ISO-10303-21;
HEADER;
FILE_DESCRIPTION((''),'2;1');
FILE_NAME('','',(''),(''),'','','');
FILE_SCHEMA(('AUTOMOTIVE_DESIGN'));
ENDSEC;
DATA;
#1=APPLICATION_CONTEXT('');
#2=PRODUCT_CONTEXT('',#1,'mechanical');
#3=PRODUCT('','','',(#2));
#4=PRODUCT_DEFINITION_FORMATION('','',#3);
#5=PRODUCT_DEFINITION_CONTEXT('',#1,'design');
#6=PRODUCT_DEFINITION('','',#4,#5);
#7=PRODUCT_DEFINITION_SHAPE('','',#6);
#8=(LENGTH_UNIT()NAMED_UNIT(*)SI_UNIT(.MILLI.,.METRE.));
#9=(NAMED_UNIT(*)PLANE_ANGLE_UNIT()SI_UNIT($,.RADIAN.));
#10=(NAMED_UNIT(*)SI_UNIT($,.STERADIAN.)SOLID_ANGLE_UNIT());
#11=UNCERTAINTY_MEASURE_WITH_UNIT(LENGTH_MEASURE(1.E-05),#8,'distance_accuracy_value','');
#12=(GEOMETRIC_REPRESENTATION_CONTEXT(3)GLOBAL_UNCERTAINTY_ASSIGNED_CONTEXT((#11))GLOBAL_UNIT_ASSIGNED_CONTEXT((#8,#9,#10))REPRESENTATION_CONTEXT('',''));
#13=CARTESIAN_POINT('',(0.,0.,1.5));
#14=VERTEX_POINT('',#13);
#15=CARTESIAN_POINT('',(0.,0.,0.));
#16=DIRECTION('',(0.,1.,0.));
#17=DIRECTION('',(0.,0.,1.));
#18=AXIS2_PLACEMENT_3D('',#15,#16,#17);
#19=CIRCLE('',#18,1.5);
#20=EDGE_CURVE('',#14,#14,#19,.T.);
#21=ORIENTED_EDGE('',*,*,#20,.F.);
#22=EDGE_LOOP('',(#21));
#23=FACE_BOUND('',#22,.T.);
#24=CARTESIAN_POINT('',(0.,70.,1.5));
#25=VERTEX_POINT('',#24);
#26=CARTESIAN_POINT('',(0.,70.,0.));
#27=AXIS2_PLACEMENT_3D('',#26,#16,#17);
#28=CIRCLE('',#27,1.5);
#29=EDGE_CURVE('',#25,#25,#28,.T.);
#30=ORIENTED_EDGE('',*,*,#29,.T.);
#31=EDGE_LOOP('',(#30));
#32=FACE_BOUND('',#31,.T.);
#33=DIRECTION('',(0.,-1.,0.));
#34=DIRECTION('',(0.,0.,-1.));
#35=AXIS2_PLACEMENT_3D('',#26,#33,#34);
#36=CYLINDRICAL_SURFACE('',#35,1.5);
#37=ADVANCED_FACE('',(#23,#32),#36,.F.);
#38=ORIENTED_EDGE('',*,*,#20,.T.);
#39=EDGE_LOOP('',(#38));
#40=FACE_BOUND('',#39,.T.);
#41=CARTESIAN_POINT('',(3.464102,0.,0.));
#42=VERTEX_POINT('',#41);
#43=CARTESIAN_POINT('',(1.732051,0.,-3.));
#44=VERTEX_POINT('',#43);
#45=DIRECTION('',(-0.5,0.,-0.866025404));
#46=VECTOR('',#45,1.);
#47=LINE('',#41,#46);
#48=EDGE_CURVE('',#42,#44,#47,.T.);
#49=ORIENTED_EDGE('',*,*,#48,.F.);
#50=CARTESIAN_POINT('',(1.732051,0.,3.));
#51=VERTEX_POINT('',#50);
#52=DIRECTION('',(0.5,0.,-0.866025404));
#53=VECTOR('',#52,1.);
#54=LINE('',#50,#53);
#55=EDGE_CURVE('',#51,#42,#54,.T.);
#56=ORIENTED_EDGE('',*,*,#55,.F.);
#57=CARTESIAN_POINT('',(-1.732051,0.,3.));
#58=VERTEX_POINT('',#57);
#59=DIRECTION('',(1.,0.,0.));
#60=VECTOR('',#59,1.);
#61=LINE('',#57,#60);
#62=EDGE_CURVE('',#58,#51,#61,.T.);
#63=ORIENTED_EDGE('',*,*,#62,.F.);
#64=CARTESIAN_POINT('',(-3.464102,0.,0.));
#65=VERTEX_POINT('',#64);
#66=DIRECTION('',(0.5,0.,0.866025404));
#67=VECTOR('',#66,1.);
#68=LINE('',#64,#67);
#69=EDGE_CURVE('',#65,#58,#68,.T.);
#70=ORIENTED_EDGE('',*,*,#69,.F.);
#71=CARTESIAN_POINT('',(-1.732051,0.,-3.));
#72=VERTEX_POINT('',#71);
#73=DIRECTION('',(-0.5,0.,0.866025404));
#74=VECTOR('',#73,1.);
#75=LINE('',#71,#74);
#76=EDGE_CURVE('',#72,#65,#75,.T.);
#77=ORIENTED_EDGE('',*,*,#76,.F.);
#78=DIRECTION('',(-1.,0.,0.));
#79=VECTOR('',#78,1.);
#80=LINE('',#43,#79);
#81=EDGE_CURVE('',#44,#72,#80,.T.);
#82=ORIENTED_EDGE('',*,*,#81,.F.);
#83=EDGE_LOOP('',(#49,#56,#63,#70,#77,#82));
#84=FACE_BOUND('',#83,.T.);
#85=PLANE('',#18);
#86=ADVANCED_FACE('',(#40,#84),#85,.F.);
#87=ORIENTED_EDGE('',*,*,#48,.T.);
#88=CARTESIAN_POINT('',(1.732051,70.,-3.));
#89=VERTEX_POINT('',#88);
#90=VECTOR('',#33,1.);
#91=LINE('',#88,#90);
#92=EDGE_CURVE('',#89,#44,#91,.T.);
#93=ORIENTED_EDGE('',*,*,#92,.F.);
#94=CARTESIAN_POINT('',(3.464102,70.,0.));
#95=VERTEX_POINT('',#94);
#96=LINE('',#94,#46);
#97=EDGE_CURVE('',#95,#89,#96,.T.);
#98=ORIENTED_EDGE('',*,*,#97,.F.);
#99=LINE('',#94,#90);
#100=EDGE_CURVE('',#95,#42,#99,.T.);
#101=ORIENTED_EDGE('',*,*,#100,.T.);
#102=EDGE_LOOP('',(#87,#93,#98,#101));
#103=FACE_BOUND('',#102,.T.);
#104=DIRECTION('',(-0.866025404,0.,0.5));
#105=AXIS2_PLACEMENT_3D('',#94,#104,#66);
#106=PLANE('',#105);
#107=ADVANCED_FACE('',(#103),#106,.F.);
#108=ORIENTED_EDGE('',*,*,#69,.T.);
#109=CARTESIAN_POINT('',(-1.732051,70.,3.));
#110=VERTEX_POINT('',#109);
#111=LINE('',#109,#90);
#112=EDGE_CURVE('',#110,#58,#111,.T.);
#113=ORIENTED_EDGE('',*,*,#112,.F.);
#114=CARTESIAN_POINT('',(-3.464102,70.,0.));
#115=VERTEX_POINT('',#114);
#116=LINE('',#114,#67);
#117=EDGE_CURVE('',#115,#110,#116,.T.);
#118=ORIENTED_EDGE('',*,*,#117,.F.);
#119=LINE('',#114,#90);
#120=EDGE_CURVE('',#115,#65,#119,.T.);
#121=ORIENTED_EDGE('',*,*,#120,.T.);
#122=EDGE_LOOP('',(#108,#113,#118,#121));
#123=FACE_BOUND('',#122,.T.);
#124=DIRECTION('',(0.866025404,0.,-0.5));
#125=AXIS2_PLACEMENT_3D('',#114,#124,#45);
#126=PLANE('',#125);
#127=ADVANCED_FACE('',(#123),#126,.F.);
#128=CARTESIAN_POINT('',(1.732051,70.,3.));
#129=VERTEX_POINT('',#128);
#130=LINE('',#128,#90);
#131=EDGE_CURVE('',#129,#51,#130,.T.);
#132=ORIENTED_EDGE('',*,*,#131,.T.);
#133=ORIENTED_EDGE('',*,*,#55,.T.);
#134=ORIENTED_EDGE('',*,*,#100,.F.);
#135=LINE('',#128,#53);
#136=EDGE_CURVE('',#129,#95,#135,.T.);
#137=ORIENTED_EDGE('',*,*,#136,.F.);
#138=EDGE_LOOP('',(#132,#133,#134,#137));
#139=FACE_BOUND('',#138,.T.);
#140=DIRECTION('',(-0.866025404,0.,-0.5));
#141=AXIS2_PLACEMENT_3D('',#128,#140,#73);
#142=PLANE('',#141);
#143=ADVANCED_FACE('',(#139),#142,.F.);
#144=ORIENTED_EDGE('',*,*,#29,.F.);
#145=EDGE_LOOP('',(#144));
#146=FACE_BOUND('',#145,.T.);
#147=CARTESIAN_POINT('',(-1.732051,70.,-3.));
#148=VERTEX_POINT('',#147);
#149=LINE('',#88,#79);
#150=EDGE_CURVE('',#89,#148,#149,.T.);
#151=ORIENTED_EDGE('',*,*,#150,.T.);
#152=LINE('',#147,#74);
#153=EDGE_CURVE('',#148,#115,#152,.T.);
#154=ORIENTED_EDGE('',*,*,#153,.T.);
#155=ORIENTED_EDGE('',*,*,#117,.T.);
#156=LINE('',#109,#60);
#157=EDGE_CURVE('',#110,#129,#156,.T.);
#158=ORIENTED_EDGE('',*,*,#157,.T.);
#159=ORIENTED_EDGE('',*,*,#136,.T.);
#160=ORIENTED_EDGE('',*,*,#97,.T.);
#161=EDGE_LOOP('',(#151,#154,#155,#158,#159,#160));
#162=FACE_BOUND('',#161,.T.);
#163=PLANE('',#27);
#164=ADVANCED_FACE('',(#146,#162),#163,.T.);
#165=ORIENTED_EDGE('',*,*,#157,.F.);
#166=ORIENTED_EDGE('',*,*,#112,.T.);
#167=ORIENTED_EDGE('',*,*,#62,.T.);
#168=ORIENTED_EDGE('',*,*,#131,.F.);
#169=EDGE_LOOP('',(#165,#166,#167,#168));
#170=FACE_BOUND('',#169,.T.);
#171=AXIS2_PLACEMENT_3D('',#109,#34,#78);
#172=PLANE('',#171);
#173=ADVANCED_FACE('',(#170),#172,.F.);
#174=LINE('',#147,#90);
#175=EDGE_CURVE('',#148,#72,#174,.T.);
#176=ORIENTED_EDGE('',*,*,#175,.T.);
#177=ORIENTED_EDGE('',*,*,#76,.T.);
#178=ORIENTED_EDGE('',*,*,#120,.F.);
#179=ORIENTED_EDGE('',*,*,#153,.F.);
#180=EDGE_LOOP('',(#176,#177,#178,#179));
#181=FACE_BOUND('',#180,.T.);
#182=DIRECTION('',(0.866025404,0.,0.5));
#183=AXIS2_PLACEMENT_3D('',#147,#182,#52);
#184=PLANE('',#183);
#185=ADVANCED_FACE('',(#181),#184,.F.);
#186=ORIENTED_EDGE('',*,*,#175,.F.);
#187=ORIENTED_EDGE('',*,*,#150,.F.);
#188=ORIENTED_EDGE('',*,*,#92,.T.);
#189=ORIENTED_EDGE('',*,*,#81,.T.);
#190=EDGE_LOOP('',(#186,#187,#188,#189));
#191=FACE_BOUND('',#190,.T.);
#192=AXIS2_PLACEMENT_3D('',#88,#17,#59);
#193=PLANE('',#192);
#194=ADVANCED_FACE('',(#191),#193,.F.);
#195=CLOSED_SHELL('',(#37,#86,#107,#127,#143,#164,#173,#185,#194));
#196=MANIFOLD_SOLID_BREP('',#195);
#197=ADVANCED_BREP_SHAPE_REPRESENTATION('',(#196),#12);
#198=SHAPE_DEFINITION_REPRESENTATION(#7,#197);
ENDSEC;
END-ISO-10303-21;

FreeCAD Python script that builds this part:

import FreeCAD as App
import Part
import Sketcher
from FreeCAD import Vector
Q = App.Units.Quantity

doc = App.newDocument("Part")
body = doc.addObject("PartDesign::Body", "Body")

sketch1 = body.newObject("Sketcher::SketchObject", "Sketch")
sketch1.AttachmentSupport = (doc.getObject("XZ_Plane"), [""])
sketch1.MapMode = "FlatFace"
sketch1.addGeometry(Part.LineSegment(Vector(3.5, 0, 0), Vector(1.7, -3, 0)), False)
sketch1.addGeometry(Part.LineSegment(Vector(1.7, -3, 0), Vector(-1.7, -3, 0)), False)
sketch1.addGeometry(Part.LineSegment(Vector(-1.7, -3, 0), Vector(-3.5, 0, 0)), False)
sketch1.addGeometry(Part.LineSegment(Vector(-3.5, 0, 0), Vector(-1.7, 3, 0)), False)
sketch1.addGeometry(Part.LineSegment(Vector(-1.7, 3, 0), Vector(1.7, 3, 0)), False)
sketch1.addGeometry(Part.LineSegment(Vector(1.7, 3, 0), Vector(3.5, 0, 0)), False)
sketch1.addGeometry(Part.Circle(Vector(0, 0, 0), Vector(0, 0, 1), 1.5), False)
sketch1.addConstraint(Sketcher.Constraint("Coincident", 0, 2, 1, 1))
sketch1.addConstraint(Sketcher.Constraint("Coincident", 1, 2, 2, 1))
sketch1.addConstraint(Sketcher.Constraint("Coincident", 2, 2, 3, 1))
sketch1.addConstraint(Sketcher.Constraint("Coincident", 3, 2, 4, 1))
sketch1.addConstraint(Sketcher.Constraint("Coincident", 4, 2, 5, 1))
sketch1.addConstraint(Sketcher.Constraint("Coincident", 5, 2, 0, 1))
sketch1.addConstraint(Sketcher.Constraint("Horizontal", 1))
sketch1.addConstraint(Sketcher.Constraint("Horizontal", 4))
sketch1.addConstraint(Sketcher.Constraint("Coincident", 6, 3, -1, 1))
sketch1.addConstraint(Sketcher.Constraint("Symmetric", 0, 2, 3, 2, -1, 1))
sketch1.addConstraint(Sketcher.Constraint("Symmetric", 2, 2, 5, 2, -1, 1))
sketch1.addConstraint(Sketcher.Constraint("PointOnObject", 2, 2, -1))
sketch1.addConstraint(Sketcher.Constraint("Parallel", 2, 5))
sketch1.addConstraint(Sketcher.Constraint("Vertical", 1, 2, 3, 2))
sketch1.addConstraint(Sketcher.Constraint("Diameter", 6, 3.0))
sketch1.addConstraint(Sketcher.Constraint("Angle", 0, Q("-120 deg")))
sketch1.addConstraint(Sketcher.Constraint("DistanceY", 0, 2, -1, 1, 3.0))
sketch1.addConstraint(Sketcher.Constraint("DistanceX", 1, 2, 1, 1, 3.464102))
pad1 = body.newObject("PartDesign::Pad", "Pad")
pad1.Profile = sketch1
pad1.Length = 70
pad1.Reversed = True

doc.recompute()
